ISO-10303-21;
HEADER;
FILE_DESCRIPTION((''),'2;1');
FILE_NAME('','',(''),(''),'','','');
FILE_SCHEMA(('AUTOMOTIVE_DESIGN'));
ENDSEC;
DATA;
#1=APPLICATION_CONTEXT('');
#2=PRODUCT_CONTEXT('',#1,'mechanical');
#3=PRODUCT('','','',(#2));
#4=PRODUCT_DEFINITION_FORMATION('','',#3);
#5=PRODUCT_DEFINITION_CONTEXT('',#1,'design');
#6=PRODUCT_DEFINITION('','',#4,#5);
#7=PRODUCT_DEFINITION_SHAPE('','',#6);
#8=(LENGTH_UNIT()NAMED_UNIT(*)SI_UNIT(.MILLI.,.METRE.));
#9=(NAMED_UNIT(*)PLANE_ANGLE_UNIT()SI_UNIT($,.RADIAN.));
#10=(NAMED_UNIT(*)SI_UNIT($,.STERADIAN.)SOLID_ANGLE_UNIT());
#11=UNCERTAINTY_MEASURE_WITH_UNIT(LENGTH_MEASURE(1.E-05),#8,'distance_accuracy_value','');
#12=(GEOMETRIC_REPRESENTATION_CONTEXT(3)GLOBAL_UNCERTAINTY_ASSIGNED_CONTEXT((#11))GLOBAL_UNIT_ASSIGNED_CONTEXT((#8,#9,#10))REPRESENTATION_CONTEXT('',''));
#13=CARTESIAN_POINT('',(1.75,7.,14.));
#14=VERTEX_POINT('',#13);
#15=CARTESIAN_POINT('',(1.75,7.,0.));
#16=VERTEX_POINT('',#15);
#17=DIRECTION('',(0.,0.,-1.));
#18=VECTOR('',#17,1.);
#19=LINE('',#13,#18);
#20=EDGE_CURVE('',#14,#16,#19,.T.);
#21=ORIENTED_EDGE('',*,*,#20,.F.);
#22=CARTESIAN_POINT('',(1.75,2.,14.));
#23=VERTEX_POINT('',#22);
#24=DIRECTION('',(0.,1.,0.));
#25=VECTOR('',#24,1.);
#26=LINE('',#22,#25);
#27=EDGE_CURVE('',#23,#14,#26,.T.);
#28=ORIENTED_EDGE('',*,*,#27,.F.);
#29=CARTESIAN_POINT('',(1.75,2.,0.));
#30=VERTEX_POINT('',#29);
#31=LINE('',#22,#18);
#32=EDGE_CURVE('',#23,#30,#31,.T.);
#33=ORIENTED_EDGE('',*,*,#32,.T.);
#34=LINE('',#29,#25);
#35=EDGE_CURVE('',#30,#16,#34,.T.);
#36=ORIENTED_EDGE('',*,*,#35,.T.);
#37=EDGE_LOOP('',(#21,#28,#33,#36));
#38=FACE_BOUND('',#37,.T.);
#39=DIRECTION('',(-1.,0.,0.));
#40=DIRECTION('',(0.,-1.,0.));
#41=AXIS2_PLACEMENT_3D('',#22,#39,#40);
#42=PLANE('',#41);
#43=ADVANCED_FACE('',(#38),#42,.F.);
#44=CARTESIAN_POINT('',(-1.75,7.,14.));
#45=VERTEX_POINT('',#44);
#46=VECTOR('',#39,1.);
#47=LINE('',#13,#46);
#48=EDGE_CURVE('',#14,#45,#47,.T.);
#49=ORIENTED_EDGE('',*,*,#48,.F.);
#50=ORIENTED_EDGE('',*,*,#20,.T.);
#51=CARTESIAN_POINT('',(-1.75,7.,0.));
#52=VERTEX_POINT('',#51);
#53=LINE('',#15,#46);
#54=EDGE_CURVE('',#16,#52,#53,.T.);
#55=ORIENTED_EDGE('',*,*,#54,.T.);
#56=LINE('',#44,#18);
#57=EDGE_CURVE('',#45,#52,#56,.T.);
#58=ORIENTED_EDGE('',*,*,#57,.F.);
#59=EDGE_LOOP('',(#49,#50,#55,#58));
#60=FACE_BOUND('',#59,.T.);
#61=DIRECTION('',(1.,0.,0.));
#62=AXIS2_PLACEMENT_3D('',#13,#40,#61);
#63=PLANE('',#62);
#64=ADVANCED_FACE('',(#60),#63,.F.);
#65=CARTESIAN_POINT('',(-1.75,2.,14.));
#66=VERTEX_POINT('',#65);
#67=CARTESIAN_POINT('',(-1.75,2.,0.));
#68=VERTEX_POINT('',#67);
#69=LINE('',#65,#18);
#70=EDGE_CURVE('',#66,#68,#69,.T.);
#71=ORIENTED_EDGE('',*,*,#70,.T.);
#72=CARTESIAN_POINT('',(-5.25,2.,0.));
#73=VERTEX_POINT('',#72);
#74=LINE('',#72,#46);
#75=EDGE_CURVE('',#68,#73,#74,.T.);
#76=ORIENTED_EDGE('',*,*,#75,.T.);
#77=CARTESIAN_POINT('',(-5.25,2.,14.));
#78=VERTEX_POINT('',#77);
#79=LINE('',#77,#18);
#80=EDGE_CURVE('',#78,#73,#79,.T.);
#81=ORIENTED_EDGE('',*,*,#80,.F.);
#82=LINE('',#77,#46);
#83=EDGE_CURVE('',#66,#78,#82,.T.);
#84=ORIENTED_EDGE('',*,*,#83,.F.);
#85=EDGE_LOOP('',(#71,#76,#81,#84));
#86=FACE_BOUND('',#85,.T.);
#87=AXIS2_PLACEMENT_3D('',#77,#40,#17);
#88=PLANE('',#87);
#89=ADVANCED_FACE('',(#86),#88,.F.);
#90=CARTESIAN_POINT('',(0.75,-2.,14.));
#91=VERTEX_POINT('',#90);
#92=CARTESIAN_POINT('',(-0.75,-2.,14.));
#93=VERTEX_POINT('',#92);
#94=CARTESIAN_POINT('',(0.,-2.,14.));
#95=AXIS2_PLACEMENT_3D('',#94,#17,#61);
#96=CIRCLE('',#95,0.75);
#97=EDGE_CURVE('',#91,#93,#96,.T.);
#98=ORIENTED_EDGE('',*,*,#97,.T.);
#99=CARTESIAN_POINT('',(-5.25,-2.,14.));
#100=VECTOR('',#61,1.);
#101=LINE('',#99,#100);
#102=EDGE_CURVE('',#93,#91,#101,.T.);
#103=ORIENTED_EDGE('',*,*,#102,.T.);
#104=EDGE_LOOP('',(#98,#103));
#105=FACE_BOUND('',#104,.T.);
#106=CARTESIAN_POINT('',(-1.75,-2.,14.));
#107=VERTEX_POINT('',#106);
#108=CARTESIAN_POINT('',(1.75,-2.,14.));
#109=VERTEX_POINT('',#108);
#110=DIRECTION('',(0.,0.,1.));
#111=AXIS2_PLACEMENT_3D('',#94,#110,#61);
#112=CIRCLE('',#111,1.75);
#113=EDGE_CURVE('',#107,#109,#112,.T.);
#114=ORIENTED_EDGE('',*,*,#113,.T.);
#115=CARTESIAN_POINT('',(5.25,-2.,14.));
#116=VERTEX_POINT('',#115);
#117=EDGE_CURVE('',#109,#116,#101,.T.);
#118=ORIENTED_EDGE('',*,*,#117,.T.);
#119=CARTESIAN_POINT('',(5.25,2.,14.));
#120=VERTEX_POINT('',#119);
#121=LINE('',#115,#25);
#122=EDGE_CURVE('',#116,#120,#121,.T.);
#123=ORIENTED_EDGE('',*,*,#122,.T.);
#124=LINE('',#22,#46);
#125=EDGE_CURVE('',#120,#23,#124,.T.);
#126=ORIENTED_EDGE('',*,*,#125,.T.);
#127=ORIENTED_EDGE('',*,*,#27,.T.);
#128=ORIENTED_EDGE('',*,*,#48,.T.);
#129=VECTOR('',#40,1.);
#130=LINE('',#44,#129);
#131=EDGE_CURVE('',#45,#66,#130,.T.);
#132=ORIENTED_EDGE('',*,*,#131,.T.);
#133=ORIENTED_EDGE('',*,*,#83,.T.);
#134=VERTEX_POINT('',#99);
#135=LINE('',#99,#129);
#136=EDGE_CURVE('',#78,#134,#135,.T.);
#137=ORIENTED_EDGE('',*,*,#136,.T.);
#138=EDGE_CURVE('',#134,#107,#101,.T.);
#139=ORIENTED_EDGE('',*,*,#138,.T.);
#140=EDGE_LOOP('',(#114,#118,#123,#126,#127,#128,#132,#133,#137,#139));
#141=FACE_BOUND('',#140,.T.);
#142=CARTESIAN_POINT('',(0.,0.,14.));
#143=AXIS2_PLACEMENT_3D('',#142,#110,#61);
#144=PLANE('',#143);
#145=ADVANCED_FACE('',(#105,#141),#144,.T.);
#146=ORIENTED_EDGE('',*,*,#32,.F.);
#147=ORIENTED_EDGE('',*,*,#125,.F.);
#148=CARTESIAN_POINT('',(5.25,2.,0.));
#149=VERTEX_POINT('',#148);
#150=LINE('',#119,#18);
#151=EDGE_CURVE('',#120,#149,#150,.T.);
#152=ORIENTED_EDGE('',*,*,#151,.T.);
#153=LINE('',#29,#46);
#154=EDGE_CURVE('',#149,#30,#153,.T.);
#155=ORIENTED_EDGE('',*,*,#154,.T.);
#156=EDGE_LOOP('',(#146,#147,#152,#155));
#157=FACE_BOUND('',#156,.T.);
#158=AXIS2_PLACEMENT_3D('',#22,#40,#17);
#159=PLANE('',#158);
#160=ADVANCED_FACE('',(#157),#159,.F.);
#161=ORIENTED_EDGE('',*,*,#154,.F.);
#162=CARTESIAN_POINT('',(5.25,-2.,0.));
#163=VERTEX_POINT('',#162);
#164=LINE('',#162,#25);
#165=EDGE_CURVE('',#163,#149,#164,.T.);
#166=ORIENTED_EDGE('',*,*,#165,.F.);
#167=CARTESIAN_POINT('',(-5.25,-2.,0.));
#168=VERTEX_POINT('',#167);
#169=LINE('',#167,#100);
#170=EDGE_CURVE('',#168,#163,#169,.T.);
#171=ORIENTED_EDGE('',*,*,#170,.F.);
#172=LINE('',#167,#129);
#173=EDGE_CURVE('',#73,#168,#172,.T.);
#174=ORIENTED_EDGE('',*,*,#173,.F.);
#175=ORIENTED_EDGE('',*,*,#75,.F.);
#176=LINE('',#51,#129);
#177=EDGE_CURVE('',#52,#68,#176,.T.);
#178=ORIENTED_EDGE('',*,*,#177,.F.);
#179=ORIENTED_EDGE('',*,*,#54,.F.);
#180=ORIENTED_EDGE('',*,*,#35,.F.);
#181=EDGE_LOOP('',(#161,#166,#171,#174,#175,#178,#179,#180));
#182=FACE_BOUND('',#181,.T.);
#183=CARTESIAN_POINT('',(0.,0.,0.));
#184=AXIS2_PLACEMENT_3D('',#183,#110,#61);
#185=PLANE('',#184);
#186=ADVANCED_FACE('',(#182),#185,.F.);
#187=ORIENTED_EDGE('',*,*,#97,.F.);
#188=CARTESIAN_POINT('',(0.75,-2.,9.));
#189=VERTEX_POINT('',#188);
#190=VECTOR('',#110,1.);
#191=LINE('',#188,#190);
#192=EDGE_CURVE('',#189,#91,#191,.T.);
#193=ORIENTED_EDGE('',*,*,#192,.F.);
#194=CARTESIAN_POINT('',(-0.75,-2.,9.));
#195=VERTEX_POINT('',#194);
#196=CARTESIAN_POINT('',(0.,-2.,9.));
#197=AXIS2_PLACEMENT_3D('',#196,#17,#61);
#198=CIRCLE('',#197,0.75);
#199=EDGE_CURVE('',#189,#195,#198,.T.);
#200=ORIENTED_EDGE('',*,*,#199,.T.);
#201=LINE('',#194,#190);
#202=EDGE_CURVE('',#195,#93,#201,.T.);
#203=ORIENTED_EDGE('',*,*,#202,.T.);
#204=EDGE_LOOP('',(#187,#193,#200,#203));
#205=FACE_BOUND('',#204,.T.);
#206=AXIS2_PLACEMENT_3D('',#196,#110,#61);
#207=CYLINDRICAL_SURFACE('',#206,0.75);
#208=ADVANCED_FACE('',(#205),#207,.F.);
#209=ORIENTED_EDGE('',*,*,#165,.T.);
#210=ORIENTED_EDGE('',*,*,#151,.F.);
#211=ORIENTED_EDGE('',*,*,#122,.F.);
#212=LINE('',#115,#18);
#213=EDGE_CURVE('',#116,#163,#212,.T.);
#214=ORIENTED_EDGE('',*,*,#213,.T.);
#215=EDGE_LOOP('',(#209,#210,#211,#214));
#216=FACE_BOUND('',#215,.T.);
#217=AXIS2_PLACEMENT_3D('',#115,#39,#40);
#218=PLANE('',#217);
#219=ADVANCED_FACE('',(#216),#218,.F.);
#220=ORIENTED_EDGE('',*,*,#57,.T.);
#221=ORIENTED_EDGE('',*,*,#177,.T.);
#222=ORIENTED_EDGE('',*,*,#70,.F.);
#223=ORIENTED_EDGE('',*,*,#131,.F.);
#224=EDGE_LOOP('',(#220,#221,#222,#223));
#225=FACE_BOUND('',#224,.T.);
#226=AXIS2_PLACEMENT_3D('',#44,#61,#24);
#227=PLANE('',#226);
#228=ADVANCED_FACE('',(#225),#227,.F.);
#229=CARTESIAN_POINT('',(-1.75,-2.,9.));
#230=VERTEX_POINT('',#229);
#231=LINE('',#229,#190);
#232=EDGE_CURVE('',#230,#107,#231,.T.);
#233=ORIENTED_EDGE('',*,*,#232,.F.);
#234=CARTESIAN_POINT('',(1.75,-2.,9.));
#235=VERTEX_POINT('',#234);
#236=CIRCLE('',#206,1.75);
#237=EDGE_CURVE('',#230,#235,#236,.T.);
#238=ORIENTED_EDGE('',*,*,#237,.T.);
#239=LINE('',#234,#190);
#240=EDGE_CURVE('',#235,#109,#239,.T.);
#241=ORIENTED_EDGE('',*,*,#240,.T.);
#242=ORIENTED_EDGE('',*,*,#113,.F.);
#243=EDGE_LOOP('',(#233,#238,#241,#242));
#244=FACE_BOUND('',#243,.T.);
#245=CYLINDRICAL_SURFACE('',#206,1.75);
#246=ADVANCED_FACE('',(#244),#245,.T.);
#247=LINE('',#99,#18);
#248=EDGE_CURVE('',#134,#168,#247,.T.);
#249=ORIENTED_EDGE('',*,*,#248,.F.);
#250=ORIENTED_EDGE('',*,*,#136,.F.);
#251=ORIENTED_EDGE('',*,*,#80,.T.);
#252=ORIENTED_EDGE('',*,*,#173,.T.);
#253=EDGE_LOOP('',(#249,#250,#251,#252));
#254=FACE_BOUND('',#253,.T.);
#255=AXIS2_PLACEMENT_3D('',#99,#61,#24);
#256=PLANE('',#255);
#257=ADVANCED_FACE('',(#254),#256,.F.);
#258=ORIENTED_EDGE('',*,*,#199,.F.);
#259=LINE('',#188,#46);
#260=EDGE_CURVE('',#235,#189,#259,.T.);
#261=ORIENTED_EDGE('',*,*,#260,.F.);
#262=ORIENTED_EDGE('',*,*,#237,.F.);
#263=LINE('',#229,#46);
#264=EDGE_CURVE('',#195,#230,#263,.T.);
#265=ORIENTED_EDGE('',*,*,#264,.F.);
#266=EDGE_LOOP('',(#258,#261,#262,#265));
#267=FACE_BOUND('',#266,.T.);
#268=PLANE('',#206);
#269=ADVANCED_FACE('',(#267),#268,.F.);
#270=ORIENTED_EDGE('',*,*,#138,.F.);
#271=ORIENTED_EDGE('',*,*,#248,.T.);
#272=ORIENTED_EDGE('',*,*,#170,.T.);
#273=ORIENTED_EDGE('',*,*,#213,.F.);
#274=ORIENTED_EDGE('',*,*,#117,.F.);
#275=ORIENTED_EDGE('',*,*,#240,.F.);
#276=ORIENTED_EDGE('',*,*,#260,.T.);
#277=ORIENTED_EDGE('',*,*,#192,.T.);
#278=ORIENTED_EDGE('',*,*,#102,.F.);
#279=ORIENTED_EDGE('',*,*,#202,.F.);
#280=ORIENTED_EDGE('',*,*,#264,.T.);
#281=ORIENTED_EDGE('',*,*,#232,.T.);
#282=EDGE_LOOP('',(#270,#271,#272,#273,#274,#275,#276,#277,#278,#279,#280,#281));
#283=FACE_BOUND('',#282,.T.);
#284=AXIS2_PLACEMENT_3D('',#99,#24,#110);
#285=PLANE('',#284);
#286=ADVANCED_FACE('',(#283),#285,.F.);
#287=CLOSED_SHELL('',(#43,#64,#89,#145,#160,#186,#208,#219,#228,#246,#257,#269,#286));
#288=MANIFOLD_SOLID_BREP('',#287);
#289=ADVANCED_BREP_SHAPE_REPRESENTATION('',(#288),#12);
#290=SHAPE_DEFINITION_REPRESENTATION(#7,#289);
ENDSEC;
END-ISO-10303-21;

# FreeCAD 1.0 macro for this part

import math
import FreeCAD as App
import Part
import Sketcher
Q = App.Units.Quantity

doc = App.newDocument("Part")
body = doc.addObject("PartDesign::Body", "Body")

# Sketch on XY plane
sketch1 = body.newObject("Sketcher::SketchObject", "Sketch")
sketch1.AttachmentSupport = (doc.getObject("XY_Plane"), [""])
sketch1.MapMode = "FlatFace"
sketch1.addGeometry([
    Part.LineSegment(App.Vector(1.8, 2, 0), App.Vector(1.8, 7, 0)),  # 0
    Part.LineSegment(App.Vector(1.8, 7, 0), App.Vector(-1.8, 7, 0)),  # 1
    Part.LineSegment(App.Vector(-1.8, 7, 0), App.Vector(-1.8, 2, 0)),  # 2
    Part.LineSegment(App.Vector(-1.8, 2, 0), App.Vector(-5.2, 2, 0)),  # 3
    Part.LineSegment(App.Vector(-5.2, 2, 0), App.Vector(-5.2, -2, 0)),  # 4
    Part.LineSegment(App.Vector(-5.2, -2, 0), App.Vector(5.2, -2, 0)),  # 5
    Part.LineSegment(App.Vector(5.2, -2, 0), App.Vector(5.2, 2, 0)),  # 6
    Part.LineSegment(App.Vector(5.2, 2, 0), App.Vector(1.8, 2, 0)),  # 7
], False)
sketch1.addConstraint([
    Sketcher.Constraint("Coincident", 0, 2, 1, 1),
    Sketcher.Constraint("Coincident", 1, 2, 2, 1),
    Sketcher.Constraint("Coincident", 2, 2, 3, 1),
    Sketcher.Constraint("Coincident", 3, 2, 4, 1),
    Sketcher.Constraint("Coincident", 4, 2, 5, 1),
    Sketcher.Constraint("Coincident", 5, 2, 6, 1),
    Sketcher.Constraint("Coincident", 6, 2, 7, 1),
    Sketcher.Constraint("Coincident", 7, 2, 0, 1),
    Sketcher.Constraint("Vertical", 0),
    Sketcher.Constraint("Horizontal", 1),
    Sketcher.Constraint("Vertical", 2),
    Sketcher.Constraint("Horizontal", 3),
    Sketcher.Constraint("Vertical", 4),
    Sketcher.Constraint("Horizontal", 5),
    Sketcher.Constraint("Vertical", 6),
    Sketcher.Constraint("Horizontal", 7),
    Sketcher.Constraint("Symmetric", 3, 2, 5, 2, -1, 1),
    Sketcher.Constraint("Symmetric", 2, 2, 7, 2, -2),
    Sketcher.Constraint("Equal", 1, 3),
    Sketcher.Constraint("DistanceY", 0, 1, 0, 2, Q("5 mm")),
    Sketcher.Constraint("DistanceY", 4, 2, 4, 1, Q("4 mm")),
    Sketcher.Constraint("DistanceX", 1, 2, 1, 1, Q("3.5 mm")),
])
pad1 = body.newObject("PartDesign::Pad", "Pad")
pad1.Profile = sketch1
pad1.Length = 14

# Sketch on XY plane
sketch2 = body.newObject("Sketcher::SketchObject", "Sketch001")
sketch2.AttachmentSupport = (doc.getObject("XY_Plane"), [""])
sketch2.MapMode = "FlatFace"
sketch2.AttachmentOffset = App.Placement(App.Vector(0, 0, 14), App.Rotation())
sketch2.addGeometry([
    Part.LineSegment(App.Vector(-0.8, -2, 0), App.Vector(-1.8, -2, 0)),
    Part.ArcOfCircle(Part.Circle(App.Vector(0, -2, 0), App.Vector(0, 0, 1), 1.8), math.radians(180), math.radians(360)),
    Part.LineSegment(App.Vector(1.8, -2, 0), App.Vector(0.8, -2, 0)),
    Part.ArcOfCircle(Part.Circle(App.Vector(0, -2, 0), App.Vector(0, 0, 1), 0.8), math.radians(180), math.radians(360)),
], False)
sketch2.addConstraint([
    Sketcher.Constraint("Coincident", 0, 2, 1, 1),
    Sketcher.Constraint("Coincident", 1, 2, 2, 1),
    Sketcher.Constraint("Coincident", 2, 2, 3, 2),
    Sketcher.Constraint("Coincident", 3, 1, 0, 1),
    Sketcher.Constraint("Horizontal", 0),
    Sketcher.Constraint("Horizontal", 2),
    Sketcher.Constraint("Coincident", 3, 3, 1, 3),
    Sketcher.Constraint("Symmetric", 0, 2, 1, 2, -2),
    Sketcher.Constraint("Horizontal", 3, 3, 0, 2),
    Sketcher.Constraint("DistanceX", 0, 2, 0, 1, Q("1 mm")),
    Sketcher.Constraint("Radius", 1, Q("1.75 mm")),
    Sketcher.Constraint("DistanceY", 1, 3, -1, 1, Q("2 mm")),
])
pad2 = body.newObject("PartDesign::Pad", "Pad001")
pad2.Profile = sketch2
pad2.Length = 5
pad2.Reversed = True

doc.recompute()
